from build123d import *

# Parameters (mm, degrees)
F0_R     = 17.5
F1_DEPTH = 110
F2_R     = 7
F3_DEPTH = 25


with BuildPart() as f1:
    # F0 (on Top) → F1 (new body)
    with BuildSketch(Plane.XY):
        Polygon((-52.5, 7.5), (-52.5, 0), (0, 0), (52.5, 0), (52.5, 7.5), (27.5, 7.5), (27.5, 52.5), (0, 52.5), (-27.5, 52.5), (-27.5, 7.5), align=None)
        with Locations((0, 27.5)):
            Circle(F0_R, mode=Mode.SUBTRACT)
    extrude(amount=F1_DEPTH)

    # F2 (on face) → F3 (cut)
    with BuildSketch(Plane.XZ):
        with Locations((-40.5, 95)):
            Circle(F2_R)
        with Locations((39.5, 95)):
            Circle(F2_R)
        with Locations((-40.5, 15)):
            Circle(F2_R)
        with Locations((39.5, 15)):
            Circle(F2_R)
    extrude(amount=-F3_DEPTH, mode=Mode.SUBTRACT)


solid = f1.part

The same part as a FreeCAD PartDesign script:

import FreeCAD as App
import Part
import Sketcher
from FreeCAD import Vector

doc = App.newDocument("Part")
body = doc.addObject("PartDesign::Body", "Body")

# Sketch on XY plane
sketch1 = doc.addObject("Sketcher::SketchObject", "Sketch")
body.addObject(sketch1)
sketch1.AttachmentSupport = (doc.XY_Plane, [""])
sketch1.MapMode = "FlatFace"
sketch1.addGeometry([
    Part.LineSegment(Vector(-52.5, 7.5, 0), Vector(-52.5, 0, 0)),  # 0
    Part.LineSegment(Vector(-52.5, 0, 0), Vector(52.5, 0, 0)),  # 1
    Part.LineSegment(Vector(52.5, 0, 0), Vector(52.5, 7.5, 0)),  # 2
    Part.LineSegment(Vector(52.5, 7.5, 0), Vector(27.5, 7.5, 0)),  # 3
    Part.LineSegment(Vector(27.5, 7.5, 0), Vector(27.5, 52.5, 0)),  # 4
    Part.LineSegment(Vector(27.5, 52.5, 0), Vector(-27.5, 52.5, 0)),  # 5
    Part.LineSegment(Vector(-27.5, 52.5, 0), Vector(-27.5, 7.5, 0)),  # 6
    Part.LineSegment(Vector(-27.5, 7.5, 0), Vector(-52.5, 7.5, 0)),  # 7
    Part.Circle(Vector(0, 27.5, 0), Vector(0, 0, 1), 17.5),  # 8
], False)
sketch1.addConstraint([
    Sketcher.Constraint("Coincident", 0, 2, 1, 1),
    Sketcher.Constraint("Coincident", 1, 2, 2, 1),
    Sketcher.Constraint("Coincident", 2, 2, 3, 1),
    Sketcher.Constraint("Coincident", 3, 2, 4, 1),
    Sketcher.Constraint("Coincident", 4, 2, 5, 1),
    Sketcher.Constraint("Coincident", 5, 2, 6, 1),
    Sketcher.Constraint("Coincident", 6, 2, 7, 1),
    Sketcher.Constraint("Coincident", 7, 2, 0, 1),
    Sketcher.Constraint("Vertical", 0),
    Sketcher.Constraint("Horizontal", 1),
    Sketcher.Constraint("Vertical", 2),
    Sketcher.Constraint("Horizontal", 3),
    Sketcher.Constraint("Vertical", 4),
    Sketcher.Constraint("Horizontal", 5),
    Sketcher.Constraint("Vertical", 6),
    Sketcher.Constraint("Horizontal", 7),
    Sketcher.Constraint("Symmetric", 0, 2, 1, 2, -1, 1),
    Sketcher.Constraint("Symmetric", 3, 2, 6, 2, -2),
    Sketcher.Constraint("PointOnObject", 8, 3, -2),
    Sketcher.Constraint("Diameter", 8, 35.0),
    Sketcher.Constraint("DistanceX", 1, 1, 1, 2, 105.0),
    Sketcher.Constraint("DistanceX", 3, 2, 3, 1, 25.0),
    Sketcher.Constraint("DistanceY", 4, 1, 4, 2, 45.0),
    Sketcher.Constraint("DistanceY", 0, 2, 0, 1, 7.5),
    Sketcher.Constraint("DistanceY", 2, 2, 8, 3, 20.0),
])
pad1 = doc.addObject("PartDesign::Pad", "Pad")
body.addObject(pad1)
pad1.Profile = sketch1
pad1.Length = 110

# Sketch on XZ plane
sketch2 = doc.addObject("Sketcher::SketchObject", "Sketch001")
body.addObject(sketch2)
sketch2.AttachmentSupport = (doc.XZ_Plane, [""])
sketch2.MapMode = "FlatFace"
sketch2.addGeometry([
    Part.Circle(Vector(-40.5, 95, 0), Vector(0, 0, 1), 7),
    Part.Circle(Vector(39.5, 95, 0), Vector(0, 0, 1), 7),
    Part.Circle(Vector(-40.5, 15, 0), Vector(0, 0, 1), 7),
    Part.Circle(Vector(39.5, 15, 0), Vector(0, 0, 1), 7),
], False)
sketch2.addConstraint([
    Sketcher.Constraint("Equal", 0, 1),
    Sketcher.Constraint("Equal", 1, 2),
    Sketcher.Constraint("Equal", 2, 3),
    Sketcher.Constraint("Horizontal", 0, 3, 1, 3),
    Sketcher.Constraint("Horizontal", 2, 3, 3, 3),
    Sketcher.Constraint("Vertical", 0, 3, 2, 3),
    Sketcher.Constraint("Vertical", 1, 3, 3, 3),
    Sketcher.Constraint("Diameter", 0, 14.0),
    Sketcher.Constraint("DistanceY", -1, 1, 0, 3, 95.0),
    Sketcher.Constraint("DistanceY", -1, 1, 2, 3, 15.0),
    Sketcher.Constraint("DistanceX", 0, 3, 1, 3, 80.0),
    Sketcher.Constraint("DistanceX", 0, 3, -1, 1, 40.5),
])
pocket1 = doc.addObject("PartDesign::Pocket", "Pocket")
body.addObject(pocket1)
pocket1.Profile = sketch2
pocket1.Length = 25

doc.recompute()
